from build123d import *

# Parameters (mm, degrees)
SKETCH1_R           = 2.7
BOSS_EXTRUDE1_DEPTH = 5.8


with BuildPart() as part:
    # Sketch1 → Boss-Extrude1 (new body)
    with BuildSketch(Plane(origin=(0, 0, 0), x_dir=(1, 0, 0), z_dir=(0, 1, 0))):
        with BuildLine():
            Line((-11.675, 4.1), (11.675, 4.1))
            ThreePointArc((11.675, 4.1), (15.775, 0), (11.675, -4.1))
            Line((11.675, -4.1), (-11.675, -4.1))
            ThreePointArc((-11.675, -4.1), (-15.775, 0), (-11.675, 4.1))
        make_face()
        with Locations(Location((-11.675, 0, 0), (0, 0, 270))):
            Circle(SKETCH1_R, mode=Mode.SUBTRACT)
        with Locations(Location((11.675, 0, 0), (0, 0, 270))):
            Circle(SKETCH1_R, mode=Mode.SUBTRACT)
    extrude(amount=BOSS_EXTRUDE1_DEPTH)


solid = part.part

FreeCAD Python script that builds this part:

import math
import FreeCAD as App
import Part
import Sketcher

V = App.Vector
Q = App.Units.Quantity

doc = App.newDocument("Part")
body = doc.addObject("PartDesign::Body", "Body")

# Sketch on XZ plane
sketch1 = body.newObject("Sketcher::SketchObject", "Sketch")
sketch1.AttachmentSupport = (doc.getObject("XZ_Plane"), [""])
sketch1.MapMode = "FlatFace"
sketch1.addGeometry(Part.LineSegment(V(11.7, -4.1, 0), V(-11.7, -4.1, 0)), False)
sketch1.addGeometry(Part.ArcOfCircle(Part.Circle(V(-11.7, 0, 0), V(0, 0, 1), 4.1), math.radians(90), math.radians(270)), False)
sketch1.addGeometry(Part.LineSegment(V(-11.7, 4.1, 0), V(11.7, 4.1, 0)), False)
sketch1.addGeometry(Part.ArcOfCircle(Part.Circle(V(11.7, 0, 0), V(0, 0, 1), 4.1), math.radians(-90), math.radians(90)), False)
sketch1.addGeometry(Part.Circle(V(11.7, 0, 0), V(0, 0, 1), 2.7), False)
sketch1.addGeometry(Part.Circle(V(-11.7, 0, 0), V(0, 0, 1), 2.7), False)
sketch1.addConstraint(Sketcher.Constraint("Tangent", 0, 2, 1, 2))
sketch1.addConstraint(Sketcher.Constraint("Tangent", 1, 1, 2, 1))
sketch1.addConstraint(Sketcher.Constraint("Tangent", 2, 2, 3, 2))
sketch1.addConstraint(Sketcher.Constraint("Tangent", 3, 1, 0, 1))
sketch1.addConstraint(Sketcher.Constraint("Horizontal", 0))
sketch1.addConstraint(Sketcher.Constraint("Horizontal", 2))
sketch1.addConstraint(Sketcher.Constraint("Coincident", 4, 3, 3, 3))
sketch1.addConstraint(Sketcher.Constraint("Coincident", 5, 3, 1, 3))
sketch1.addConstraint(Sketcher.Constraint("Equal", 4, 5))
sketch1.addConstraint(Sketcher.Constraint("Symmetric", 1, 3, 3, 3, -1, 1))
sketch1.addConstraint(Sketcher.Constraint("Diameter", 4, Q("5.4 mm")))
sketch1.addConstraint(Sketcher.Constraint("Radius", 1, Q("4.1 mm")))
sketch1.addConstraint(Sketcher.Constraint("DistanceX", 0, 2, 0, 1, Q("23.35 mm")))
pad1 = body.newObject("PartDesign::Pad", "Pad")
pad1.Profile = sketch1
pad1.Length = 5.8
pad1.Reversed = True

doc.recompute()
